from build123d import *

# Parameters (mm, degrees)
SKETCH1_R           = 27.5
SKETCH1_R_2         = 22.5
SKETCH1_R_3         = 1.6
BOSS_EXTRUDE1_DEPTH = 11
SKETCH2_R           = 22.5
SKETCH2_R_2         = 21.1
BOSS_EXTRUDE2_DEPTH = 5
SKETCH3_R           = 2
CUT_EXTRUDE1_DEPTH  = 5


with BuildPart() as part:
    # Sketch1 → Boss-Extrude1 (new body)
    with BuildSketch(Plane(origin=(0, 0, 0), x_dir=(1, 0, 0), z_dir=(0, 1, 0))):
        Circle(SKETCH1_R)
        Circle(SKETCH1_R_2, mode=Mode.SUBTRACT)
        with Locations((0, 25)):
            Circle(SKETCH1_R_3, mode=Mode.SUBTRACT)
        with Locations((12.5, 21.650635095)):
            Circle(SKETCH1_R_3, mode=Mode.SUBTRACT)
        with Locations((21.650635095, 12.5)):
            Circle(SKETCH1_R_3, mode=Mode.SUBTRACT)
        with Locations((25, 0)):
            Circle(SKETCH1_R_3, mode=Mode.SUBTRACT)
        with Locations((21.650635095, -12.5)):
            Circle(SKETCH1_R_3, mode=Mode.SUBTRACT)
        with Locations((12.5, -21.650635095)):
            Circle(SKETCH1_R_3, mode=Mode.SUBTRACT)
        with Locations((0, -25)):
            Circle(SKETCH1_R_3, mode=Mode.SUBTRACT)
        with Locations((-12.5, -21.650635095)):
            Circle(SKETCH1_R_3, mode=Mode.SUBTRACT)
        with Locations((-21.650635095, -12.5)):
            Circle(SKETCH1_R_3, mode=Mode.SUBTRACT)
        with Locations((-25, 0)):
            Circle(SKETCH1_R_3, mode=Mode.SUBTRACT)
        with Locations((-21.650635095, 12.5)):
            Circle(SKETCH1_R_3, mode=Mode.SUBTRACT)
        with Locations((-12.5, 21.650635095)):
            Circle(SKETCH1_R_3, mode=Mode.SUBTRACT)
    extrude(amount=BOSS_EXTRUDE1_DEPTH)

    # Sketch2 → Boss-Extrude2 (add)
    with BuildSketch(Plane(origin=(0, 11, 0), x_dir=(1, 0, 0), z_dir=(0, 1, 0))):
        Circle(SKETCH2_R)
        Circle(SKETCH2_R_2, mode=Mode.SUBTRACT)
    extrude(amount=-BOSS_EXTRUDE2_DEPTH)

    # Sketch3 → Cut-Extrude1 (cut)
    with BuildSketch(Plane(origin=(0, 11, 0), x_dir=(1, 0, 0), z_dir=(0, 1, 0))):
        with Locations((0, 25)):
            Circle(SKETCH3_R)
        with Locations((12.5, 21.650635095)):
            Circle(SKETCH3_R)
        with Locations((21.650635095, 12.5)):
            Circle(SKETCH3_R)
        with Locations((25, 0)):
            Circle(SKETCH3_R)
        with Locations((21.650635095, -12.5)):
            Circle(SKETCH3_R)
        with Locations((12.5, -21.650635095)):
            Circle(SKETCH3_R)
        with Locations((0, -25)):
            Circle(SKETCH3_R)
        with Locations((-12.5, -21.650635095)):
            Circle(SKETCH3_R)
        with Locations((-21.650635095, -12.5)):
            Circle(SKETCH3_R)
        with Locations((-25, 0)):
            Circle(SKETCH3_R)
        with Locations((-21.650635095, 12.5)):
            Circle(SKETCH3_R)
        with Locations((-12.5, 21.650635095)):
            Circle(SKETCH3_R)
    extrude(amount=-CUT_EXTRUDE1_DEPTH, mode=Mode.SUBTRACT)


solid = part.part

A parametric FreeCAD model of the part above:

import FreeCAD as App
import Part
import Sketcher

V = App.Vector
Q = App.Units.Quantity

doc = App.newDocument("Part")
body = doc.addObject("PartDesign::Body", "Body")

# Sketch on XZ plane
sketch1 = body.newObject("Sketcher::SketchObject", "Sketch")
sketch1.AttachmentSupport = (doc.getObject("XZ_Plane"), [""])
sketch1.MapMode = "FlatFace"
sketch1.addGeometry([
    Part.Circle(V(0, 0, 0), V(0, 0, 1), 27.5),  # 0
    Part.Circle(V(-12.5, 21.7, 0), V(0, 0, 1), 1.6),  # 1
    Part.Circle(V(-21.7, 12.5, 0), V(0, 0, 1), 1.6),  # 2
    Part.Circle(V(0, 25, 0), V(0, 0, 1), 1.6),  # 3
    Part.Circle(V(12.5, 21.7, 0), V(0, 0, 1), 1.6),  # 4
    Part.Circle(V(21.7, 12.5, 0), V(0, 0, 1), 1.6),  # 5
    Part.Circle(V(-25, 0, 0), V(0, 0, 1), 1.6),  # 6
    Part.Circle(V(-21.7, -12.5, 0), V(0, 0, 1), 1.6),  # 7
    Part.Circle(V(-12.5, -21.7, 0), V(0, 0, 1), 1.6),  # 8
    Part.Circle(V(0, 0, 0), V(0, 0, 1), 22.5),  # 9
    Part.Circle(V(25, 0, 0), V(0, 0, 1), 1.6),  # 10
    Part.Circle(V(21.7, -12.5, 0), V(0, 0, 1), 1.6),  # 11
    Part.Circle(V(0, -25, 0), V(0, 0, 1), 1.6),  # 12
    Part.Circle(V(12.5, -21.7, 0), V(0, 0, 1), 1.6),  # 13
], False)
sketch1.addConstraint([
    Sketcher.Constraint("Coincident", 0, 3, -1, 1),
    Sketcher.Constraint("Coincident", 9, 3, -1, 1),
    Sketcher.Constraint("Equal", 1, 2),
    Sketcher.Constraint("Equal", 2, 3),
    Sketcher.Constraint("Equal", 3, 4),
    Sketcher.Constraint("Equal", 4, 5),
    Sketcher.Constraint("Equal", 5, 6),
    Sketcher.Constraint("Equal", 6, 7),
    Sketcher.Constraint("Equal", 7, 8),
    Sketcher.Constraint("Equal", 8, 10),
    Sketcher.Constraint("Equal", 10, 11),
    Sketcher.Constraint("Equal", 11, 12),
    Sketcher.Constraint("Equal", 12, 13),
    Sketcher.Constraint("Symmetric", 5, 3, 7, 3, -1, 1),
    Sketcher.Constraint("Symmetric", 4, 3, 8, 3, -1, 1),
    Sketcher.Constraint("Symmetric", 6, 3, 10, 3, -1, 1),
    Sketcher.Constraint("Symmetric", 2, 3, 11, 3, -1, 1),
    Sketcher.Constraint("Symmetric", 3, 3, 12, 3, -1, 1),
    Sketcher.Constraint("Symmetric", 1, 3, 13, 3, -1, 1),
    Sketcher.Constraint("Symmetric", 1, 3, 4, 3, -2),
    Sketcher.Constraint("Symmetric", 2, 3, 5, 3, -2),
    Sketcher.Constraint("PointOnObject", 3, 3, -2),
    Sketcher.Constraint("PointOnObject", 6, 3, -1),
    Sketcher.Constraint("Diameter", 0, Q("55 mm")),
    Sketcher.Constraint("Diameter", 9, Q("45 mm")),
    Sketcher.Constraint("Diameter", 1, Q("3.2 mm")),
    Sketcher.Constraint("DistanceY", -1, 1, 3, 3, Q("25 mm")),
    Sketcher.Constraint("DistanceX", 6, 3, -1, 1, Q("25 mm")),
    Sketcher.Constraint("DistanceX", 1, 3, 4, 3, Q("25 mm")),
    Sketcher.Constraint("DistanceY", 7, 3, 2, 3, Q("25 mm")),
    Sketcher.Constraint("DistanceX", 2, 3, 5, 3, Q("43.30127 mm")),
    Sketcher.Constraint("DistanceY", 8, 3, 1, 3, Q("43.30127 mm")),
])
pad1 = body.newObject("PartDesign::Pad", "Pad")
pad1.Profile = sketch1
pad1.Length = 11
pad1.Reversed = True

# Sketch on XZ plane
sketch2 = body.newObject("Sketcher::SketchObject", "Sketch001")
sketch2.AttachmentSupport = (doc.getObject("XZ_Plane"), [""])
sketch2.MapMode = "FlatFace"
sketch2.AttachmentOffset = App.Placement(V(0, 0, -11), App.Rotation())
sketch2.addGeometry([
    Part.Circle(V(0, 0, 0), V(0, 0, 1), 22),
    Part.Circle(V(0, 0, 0), V(0, 0, 1), 21),
], False)
sketch2.addConstraint([
    Sketcher.Constraint("Coincident", 0, 3, -1, 1),
    Sketcher.Constraint("Coincident", 1, 3, -1, 1),
    Sketcher.Constraint("Diameter", 0, Q("45 mm")),
    Sketcher.Constraint("Diameter", 1, Q("42.2 mm")),
])
pad2 = body.newObject("PartDesign::Pad", "Pad001")
pad2.Profile = sketch2
pad2.Length = 5

# Sketch on XZ plane
sketch3 = body.newObject("Sketcher::SketchObject", "Sketch002")
sketch3.AttachmentSupport = (doc.getObject("XZ_Plane"), [""])
sketch3.MapMode = "FlatFace"
sketch3.AttachmentOffset = App.Placement(V(0, 0, -11), App.Rotation())
sketch3.addGeometry([
    Part.Circle(V(0, -25, 0), V(0, 0, 1), 2),  # 0
    Part.Circle(V(12.5, -21.7, 0), V(0, 0, 1), 2),  # 1
    Part.Circle(V(21.7, -12.5, 0), V(0, 0, 1), 2),  # 2
    Part.Circle(V(25, 0, 0), V(0, 0, 1), 2),  # 3
    Part.Circle(V(21.7, 12.5, 0), V(0, 0, 1), 2),  # 4
    Part.Circle(V(12.5, 21.7, 0), V(0, 0, 1), 2),  # 5
    Part.Circle(V(0, 25, 0), V(0, 0, 1), 2),  # 6
    Part.Circle(V(-12.5, 21.7, 0), V(0, 0, 1), 2),  # 7
    Part.Circle(V(-21.7, 12.5, 0), V(0, 0, 1), 2),  # 8
    Part.Circle(V(-25, 0, 0), V(0, 0, 1), 2),  # 9
    Part.Circle(V(-21.7, -12.5, 0), V(0, 0, 1), 2),  # 10
    Part.Circle(V(-12.5, -21.7, 0), V(0, 0, 1), 2),  # 11
], False)
sketch3.addConstraint([
    Sketcher.Constraint("Equal", 0, 1),
    Sketcher.Constraint("Equal", 1, 2),
    Sketcher.Constraint("Equal", 2, 3),
    Sketcher.Constraint("Equal", 3, 4),
    Sketcher.Constraint("Equal", 4, 5),
    Sketcher.Constraint("Equal", 5, 6),
    Sketcher.Constraint("Equal", 6, 7),
    Sketcher.Constraint("Equal", 7, 8),
    Sketcher.Constraint("Equal", 8, 9),
    Sketcher.Constraint("Equal", 9, 10),
    Sketcher.Constraint("Equal", 10, 11),
    Sketcher.Constraint("Symmetric", 0, 3, 6, 3, -1, 1),
    Sketcher.Constraint("Symmetric", 1, 3, 7, 3, -1, 1),
    Sketcher.Constraint("Symmetric", 2, 3, 8, 3, -1, 1),
    Sketcher.Constraint("Symmetric", 3, 3, 9, 3, -1, 1),
    Sketcher.Constraint("Symmetric", 4, 3, 10, 3, -1, 1),
    Sketcher.Constraint("Symmetric", 5, 3, 11, 3, -1, 1),
    Sketcher.Constraint("Symmetric", 5, 3, 7, 3, -2),
    Sketcher.Constraint("Symmetric", 4, 3, 8, 3, -2),
    Sketcher.Constraint("PointOnObject", 0, 3, -2),
    Sketcher.Constraint("PointOnObject", 3, 3, -1),
    Sketcher.Constraint("Diameter", 0, Q("4 mm")),
    Sketcher.Constraint("DistanceY", 0, 3, -1, 1, Q("25 mm")),
    Sketcher.Constraint("DistanceX", -1, 1, 3, 3, Q("25 mm")),
    Sketcher.Constraint("DistanceY", 2, 3, 4, 3, Q("25 mm")),
    Sketcher.Constraint("DistanceX", 7, 3, 5, 3, Q("25 mm")),
    Sketcher.Constraint("DistanceY", 1, 3, 5, 3, Q("43.30127 mm")),
    Sketcher.Constraint("DistanceX", 8, 3, 4, 3, Q("43.30127 mm")),
])
pocket1 = body.newObject("PartDesign::Pocket", "Pocket")
pocket1.Profile = sketch3
pocket1.Length = 5
pocket1.Reversed = True

doc.recompute()
